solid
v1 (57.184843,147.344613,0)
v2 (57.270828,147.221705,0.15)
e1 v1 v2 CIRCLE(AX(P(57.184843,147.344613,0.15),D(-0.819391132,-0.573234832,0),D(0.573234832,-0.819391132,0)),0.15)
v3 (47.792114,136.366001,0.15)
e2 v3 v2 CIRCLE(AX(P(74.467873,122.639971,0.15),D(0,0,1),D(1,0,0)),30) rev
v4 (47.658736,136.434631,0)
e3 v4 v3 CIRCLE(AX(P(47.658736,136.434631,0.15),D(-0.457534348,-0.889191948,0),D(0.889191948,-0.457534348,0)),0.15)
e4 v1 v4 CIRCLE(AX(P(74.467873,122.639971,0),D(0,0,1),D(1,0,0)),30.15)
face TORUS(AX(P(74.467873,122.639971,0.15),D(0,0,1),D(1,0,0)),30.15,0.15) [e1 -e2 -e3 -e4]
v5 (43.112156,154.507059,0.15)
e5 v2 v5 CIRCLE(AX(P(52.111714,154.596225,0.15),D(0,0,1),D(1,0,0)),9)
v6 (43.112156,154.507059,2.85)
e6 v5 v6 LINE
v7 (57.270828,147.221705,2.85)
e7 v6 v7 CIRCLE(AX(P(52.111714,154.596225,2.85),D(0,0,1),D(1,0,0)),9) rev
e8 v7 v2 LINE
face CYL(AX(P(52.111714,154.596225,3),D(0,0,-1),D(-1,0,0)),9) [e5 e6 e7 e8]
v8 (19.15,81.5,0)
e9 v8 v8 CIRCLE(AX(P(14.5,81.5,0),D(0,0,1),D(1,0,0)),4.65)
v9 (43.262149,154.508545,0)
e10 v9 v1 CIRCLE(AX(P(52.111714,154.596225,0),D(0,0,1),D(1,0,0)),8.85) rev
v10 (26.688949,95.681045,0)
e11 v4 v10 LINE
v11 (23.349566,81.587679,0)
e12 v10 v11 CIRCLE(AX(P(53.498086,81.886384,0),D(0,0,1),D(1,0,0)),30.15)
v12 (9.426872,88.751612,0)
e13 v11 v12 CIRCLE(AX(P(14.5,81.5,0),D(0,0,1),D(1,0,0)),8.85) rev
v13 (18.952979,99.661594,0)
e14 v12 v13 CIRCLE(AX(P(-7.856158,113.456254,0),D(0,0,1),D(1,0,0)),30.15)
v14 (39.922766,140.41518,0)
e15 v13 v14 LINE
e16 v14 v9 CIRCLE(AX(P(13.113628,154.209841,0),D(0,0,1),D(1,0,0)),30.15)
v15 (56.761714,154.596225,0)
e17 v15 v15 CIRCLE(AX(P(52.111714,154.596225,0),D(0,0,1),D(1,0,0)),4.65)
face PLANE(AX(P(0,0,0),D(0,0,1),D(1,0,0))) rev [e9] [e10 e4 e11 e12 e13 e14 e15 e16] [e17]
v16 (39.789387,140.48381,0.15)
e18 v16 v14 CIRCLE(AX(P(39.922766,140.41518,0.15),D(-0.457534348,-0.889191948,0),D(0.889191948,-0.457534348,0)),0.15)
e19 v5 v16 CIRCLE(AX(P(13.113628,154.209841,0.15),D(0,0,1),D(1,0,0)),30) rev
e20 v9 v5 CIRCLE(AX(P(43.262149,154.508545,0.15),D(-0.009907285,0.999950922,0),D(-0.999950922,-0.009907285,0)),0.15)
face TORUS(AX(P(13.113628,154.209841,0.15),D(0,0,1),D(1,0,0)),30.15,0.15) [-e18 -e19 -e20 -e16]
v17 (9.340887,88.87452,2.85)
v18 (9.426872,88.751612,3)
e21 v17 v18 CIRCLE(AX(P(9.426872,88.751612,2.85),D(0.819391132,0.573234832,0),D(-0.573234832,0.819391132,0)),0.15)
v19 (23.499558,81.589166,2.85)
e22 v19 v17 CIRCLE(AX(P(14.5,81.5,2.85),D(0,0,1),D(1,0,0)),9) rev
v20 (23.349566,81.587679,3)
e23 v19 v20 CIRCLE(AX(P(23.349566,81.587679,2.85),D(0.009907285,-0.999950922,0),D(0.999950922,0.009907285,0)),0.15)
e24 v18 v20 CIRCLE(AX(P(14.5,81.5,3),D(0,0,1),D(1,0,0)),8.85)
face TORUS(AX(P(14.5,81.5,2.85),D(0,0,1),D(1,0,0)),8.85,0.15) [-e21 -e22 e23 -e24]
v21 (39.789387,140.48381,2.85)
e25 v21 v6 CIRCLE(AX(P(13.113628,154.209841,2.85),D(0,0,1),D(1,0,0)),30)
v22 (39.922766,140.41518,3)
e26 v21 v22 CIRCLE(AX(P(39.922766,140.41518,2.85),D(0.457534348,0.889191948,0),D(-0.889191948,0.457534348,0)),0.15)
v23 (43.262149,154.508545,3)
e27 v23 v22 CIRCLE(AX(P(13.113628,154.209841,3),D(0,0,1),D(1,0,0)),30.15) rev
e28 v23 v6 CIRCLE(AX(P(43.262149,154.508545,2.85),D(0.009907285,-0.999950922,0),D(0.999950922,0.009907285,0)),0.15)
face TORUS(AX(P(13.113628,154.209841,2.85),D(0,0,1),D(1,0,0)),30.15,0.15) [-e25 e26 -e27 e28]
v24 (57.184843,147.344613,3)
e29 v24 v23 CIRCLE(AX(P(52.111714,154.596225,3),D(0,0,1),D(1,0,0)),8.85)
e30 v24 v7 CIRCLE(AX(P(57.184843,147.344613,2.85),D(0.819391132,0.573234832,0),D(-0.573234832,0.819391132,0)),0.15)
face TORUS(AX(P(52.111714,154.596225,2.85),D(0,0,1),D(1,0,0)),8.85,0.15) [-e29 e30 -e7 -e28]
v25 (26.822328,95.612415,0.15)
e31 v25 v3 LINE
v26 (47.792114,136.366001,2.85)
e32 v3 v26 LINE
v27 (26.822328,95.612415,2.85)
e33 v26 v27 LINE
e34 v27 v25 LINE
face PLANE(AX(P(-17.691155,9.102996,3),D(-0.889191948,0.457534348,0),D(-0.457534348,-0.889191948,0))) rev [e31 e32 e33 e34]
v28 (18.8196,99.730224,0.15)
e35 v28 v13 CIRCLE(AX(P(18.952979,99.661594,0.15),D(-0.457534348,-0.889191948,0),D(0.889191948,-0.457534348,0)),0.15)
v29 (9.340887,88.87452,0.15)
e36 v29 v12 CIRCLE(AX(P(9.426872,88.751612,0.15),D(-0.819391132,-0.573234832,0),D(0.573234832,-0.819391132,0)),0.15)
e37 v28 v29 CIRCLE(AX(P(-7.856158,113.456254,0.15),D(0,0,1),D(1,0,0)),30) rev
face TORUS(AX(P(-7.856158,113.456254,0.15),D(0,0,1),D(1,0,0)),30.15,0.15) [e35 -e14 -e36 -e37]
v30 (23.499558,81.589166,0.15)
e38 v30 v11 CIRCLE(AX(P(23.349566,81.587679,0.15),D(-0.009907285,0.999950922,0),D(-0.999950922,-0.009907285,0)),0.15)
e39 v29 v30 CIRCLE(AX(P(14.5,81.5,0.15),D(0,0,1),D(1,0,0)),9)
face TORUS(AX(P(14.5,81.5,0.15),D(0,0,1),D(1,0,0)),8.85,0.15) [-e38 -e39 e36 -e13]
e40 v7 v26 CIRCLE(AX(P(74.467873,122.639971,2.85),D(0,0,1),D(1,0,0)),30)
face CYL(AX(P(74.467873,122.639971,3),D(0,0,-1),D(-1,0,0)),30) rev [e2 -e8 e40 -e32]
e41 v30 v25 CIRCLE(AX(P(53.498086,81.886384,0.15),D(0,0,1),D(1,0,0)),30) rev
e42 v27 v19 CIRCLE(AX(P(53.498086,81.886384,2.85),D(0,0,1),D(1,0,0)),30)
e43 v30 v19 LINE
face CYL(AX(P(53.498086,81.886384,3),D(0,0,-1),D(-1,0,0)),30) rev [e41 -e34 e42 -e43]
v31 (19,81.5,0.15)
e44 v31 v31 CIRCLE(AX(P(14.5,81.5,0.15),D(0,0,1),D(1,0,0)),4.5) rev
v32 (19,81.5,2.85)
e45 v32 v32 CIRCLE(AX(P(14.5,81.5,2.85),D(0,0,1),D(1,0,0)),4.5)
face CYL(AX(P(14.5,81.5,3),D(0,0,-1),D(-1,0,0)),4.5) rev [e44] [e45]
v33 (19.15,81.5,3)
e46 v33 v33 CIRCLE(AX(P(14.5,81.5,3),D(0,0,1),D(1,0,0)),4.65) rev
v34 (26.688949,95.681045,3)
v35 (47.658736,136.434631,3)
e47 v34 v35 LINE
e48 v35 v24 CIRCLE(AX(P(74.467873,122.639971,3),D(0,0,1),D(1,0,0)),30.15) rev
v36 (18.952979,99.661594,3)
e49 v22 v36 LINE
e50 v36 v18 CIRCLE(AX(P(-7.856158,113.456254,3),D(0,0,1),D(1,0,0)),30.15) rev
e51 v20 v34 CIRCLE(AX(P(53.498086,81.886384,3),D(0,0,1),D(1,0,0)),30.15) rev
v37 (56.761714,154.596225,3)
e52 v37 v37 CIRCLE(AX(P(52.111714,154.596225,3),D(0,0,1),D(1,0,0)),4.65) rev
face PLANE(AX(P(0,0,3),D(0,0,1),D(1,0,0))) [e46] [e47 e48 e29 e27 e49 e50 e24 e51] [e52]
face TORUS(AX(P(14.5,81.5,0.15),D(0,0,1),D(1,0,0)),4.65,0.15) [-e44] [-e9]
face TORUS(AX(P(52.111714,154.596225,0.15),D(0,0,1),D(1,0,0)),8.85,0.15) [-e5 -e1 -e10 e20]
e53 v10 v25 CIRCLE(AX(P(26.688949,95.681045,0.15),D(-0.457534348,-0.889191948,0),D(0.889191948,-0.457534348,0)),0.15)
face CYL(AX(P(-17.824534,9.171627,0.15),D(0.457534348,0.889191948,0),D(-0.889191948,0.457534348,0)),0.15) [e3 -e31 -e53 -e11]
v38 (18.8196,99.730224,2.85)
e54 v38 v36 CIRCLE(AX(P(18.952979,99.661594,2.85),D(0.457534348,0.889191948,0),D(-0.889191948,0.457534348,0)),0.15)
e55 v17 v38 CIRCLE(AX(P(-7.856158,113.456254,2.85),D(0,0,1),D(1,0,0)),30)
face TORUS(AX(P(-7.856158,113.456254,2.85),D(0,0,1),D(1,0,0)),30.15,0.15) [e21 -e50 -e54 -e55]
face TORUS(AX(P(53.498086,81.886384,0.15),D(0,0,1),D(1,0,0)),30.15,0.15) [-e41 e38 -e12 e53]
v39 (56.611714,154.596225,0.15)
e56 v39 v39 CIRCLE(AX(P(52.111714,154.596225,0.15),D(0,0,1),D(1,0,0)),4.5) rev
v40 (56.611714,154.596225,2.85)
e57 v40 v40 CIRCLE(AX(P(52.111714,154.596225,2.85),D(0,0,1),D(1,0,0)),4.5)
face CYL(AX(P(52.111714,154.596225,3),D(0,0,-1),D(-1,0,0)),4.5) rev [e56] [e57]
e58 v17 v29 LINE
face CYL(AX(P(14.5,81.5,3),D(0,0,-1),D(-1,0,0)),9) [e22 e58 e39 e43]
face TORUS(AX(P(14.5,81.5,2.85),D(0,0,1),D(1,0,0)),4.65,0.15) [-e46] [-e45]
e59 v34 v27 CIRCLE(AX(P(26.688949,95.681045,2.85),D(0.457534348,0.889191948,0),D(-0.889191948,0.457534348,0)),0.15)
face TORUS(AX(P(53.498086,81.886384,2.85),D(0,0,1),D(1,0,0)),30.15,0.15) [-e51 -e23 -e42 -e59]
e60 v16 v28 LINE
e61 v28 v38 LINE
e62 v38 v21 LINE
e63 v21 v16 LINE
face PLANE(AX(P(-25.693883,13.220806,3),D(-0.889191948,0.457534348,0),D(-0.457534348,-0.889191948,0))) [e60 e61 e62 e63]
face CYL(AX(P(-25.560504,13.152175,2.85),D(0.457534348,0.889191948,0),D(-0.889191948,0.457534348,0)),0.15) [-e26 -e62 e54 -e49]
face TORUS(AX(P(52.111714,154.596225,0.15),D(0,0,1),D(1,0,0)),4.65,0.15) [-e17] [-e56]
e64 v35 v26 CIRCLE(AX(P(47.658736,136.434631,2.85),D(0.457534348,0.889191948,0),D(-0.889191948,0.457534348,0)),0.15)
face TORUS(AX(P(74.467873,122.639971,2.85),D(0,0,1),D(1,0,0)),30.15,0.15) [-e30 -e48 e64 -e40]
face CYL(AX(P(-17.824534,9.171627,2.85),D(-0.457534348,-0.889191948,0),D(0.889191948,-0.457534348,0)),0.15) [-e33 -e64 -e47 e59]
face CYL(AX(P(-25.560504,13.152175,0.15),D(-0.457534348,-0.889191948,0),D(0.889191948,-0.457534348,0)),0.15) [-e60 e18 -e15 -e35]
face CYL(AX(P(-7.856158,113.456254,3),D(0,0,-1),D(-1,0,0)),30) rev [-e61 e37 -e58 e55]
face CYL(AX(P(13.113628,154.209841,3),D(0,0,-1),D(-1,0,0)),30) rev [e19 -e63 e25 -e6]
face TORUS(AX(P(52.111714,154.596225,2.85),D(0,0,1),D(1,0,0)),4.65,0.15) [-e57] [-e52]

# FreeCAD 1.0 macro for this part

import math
import FreeCAD as App
import Part
import Sketcher
from FreeCAD import Vector
Q = App.Units.Quantity


def edges_at(feature, points):
    """Names of the edges that pass closest to the given points."""
    edges = feature.Shape.Edges
    near = lambda p: min(range(len(edges)), key=lambda i: edges[i].distToShape(Part.Vertex(*p))[0])
    return sorted({f"Edge{near(p) + 1}" for p in points})

doc = App.newDocument("Part")
params = doc.addObject("Spreadsheet::Sheet", "Params")
for row, (alias, value) in enumerate([
    ("sketch1_diameter", "9 mm"),
    ("sketch1_radius", "9 mm"),
    ("pad1_length", "3 mm"),
    ("fillet_radius", "30 mm"),
    ("fillet2_radius", "0.15 mm"),
], start=1):
    params.set(f"A{row}", alias)
    params.set(f"B{row}", "=" + value)
    params.setAlias(f"B{row}", alias)

body = doc.addObject("PartDesign::Body", "Body")

sketch1 = doc.addObject("Sketcher::SketchObject", "Sketch")
body.addObject(sketch1)
sketch1.AttachmentSupport = (doc.XY_Plane, [""])
sketch1.MapMode = "FlatFace"
sketch1.addGeometry([
    Part.LineSegment(Vector(44.5, 149.7, 0), Vector(14.1, 90.5, 0)),
    Part.ArcOfCircle(Part.Circle(Vector(14.5, 81.5, 0), Vector(0, 0, 1), 9), math.radians(93), math.radians(393)),
    Part.LineSegment(Vector(22.1, 86.4, 0), Vector(52.5, 145.6, 0)),
    Part.ArcOfCircle(Part.Circle(Vector(52.1, 154.6, 0), Vector(0, 0, 1), 9), math.radians(-87), math.radians(213)),
    Part.Circle(Vector(14.5, 81.5, 0), Vector(0, 0, 1), 4.5),
    Part.Circle(Vector(52.1, 154.6, 0), Vector(0, 0, 1), 4.5),
], False)
sketch1.addConstraint([
    Sketcher.Constraint("Coincident", 0, 2, 1, 1),
    Sketcher.Constraint("Coincident", 1, 2, 2, 1),
    Sketcher.Constraint("Coincident", 2, 2, 3, 1),
    Sketcher.Constraint("Coincident", 3, 2, 0, 1),
    Sketcher.Constraint("Coincident", 4, 3, 1, 3),
    Sketcher.Constraint("Coincident", 5, 3, 3, 3),
    Sketcher.Constraint("Equal", 1, 3),
    Sketcher.Constraint("Equal", 4, 5),
    Sketcher.Constraint("Parallel", 0, 2),
    Sketcher.Constraint("Equal", 0, 2),
    Sketcher.Constraint("Diameter", 4, Q("9 mm")),
    Sketcher.Constraint("Radius", 1, Q("9 mm")),
    Sketcher.Constraint("DistanceX", -1, 1, 1, 3, Q("14.5 mm")),
    Sketcher.Constraint("DistanceY", -1, 1, 1, 3, Q("81.5 mm")),
    Sketcher.Constraint("Distance", 0, Q("66.616768 mm")),
    Sketcher.Constraint("DistanceY", -1, 1, 0, 2, Q("90.48947 mm")),
    Sketcher.Constraint("DistanceX", -1, 1, 1, 2, Q("22.067491 mm")),
    Sketcher.Constraint("DistanceX", -1, 1, 2, 2, Q("52.546951 mm")),
])
sketch1.setExpression("Constraints[10]", "Params.sketch1_diameter")
sketch1.setExpression("Constraints[11]", "Params.sketch1_radius")
pad1 = doc.addObject("PartDesign::Pad", "Pad")
body.addObject(pad1)
pad1.Profile = sketch1
pad1.setExpression("Length", "Params.pad1_length")
doc.recompute()

fillet = doc.addObject("PartDesign::Fillet", "Fillet")
body.addObject(fillet)
fillet.Base = (pad1, edges_at(pad1, [
    (44.544, 149.725, 1.5),
    (52.547, 145.607, 1.5),
    (22.067, 86.372, 1.5),
    (14.065, 90.489, 1.5),
]))
fillet.setExpression("Radius", "Params.fillet_radius")
doc.recompute()

fillet2 = doc.addObject("PartDesign::Fillet", "Fillet001")
body.addObject(fillet2)
fillet2.Base = (fillet, edges_at(fillet, [
    (56.113, 152.537, 3),
    (29.304, 120.107, 0),
    (29.304, 120.107, 3),
    (56.23, 162.599, 0),
    (56.23, 162.599, 3),
    (37.307, 115.989, 0),
    (37.307, 115.989, 3),
    (10.499, 83.559, 3),
    (10.382, 73.497, 0),
    (10.382, 73.497, 3),
    (42.305, 147.293, 0),
    (42.305, 147.293, 3),
    (51.87, 142.371, 0),
    (51.87, 142.371, 3),
    (24.306, 88.803, 0),
    (24.306, 88.803, 3),
    (14.742, 93.725, 0),
    (14.742, 93.725, 3),
    (10.499, 83.559, 0),
    (56.113, 152.537, 0),
]))
fillet2.setExpression("Radius", "Params.fillet2_radius")

doc.recompute()
